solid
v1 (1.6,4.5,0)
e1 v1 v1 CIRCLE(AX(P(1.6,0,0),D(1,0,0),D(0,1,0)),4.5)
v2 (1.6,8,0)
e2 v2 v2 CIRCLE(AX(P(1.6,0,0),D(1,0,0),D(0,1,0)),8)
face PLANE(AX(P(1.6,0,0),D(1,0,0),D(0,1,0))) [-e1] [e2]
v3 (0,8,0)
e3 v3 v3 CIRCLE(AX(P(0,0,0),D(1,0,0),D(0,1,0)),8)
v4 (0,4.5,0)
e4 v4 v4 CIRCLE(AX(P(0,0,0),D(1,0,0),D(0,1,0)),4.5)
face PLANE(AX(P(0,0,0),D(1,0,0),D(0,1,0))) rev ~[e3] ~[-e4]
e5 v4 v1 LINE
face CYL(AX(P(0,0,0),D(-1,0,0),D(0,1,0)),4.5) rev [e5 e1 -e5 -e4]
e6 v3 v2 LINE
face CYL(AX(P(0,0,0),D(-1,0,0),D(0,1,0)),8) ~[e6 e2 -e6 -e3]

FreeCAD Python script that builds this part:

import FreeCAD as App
import Part
import Sketcher
from FreeCAD import Vector
Q = App.Units.Quantity

doc = App.newDocument("Part")
body = doc.addObject("PartDesign::Body", "Body")

# Sketch on YZ plane
sketch1 = body.newObject("Sketcher::SketchObject", "Sketch")
sketch1.AttachmentSupport = (doc.getObject("YZ_Plane"), [""])
sketch1.MapMode = "FlatFace"
sketch1.addGeometry([
    Part.Circle(Vector(0, 0, 0), Vector(0, 0, 1), 8),
    Part.Circle(Vector(0, 0, 0), Vector(0, 0, 1), 4.5),
], False)
sketch1.addConstraint([
    Sketcher.Constraint("Coincident", 0, 3, -1, 1),
    Sketcher.Constraint("Coincident", 1, 3, -1, 1),
    Sketcher.Constraint("Diameter", 0, Q("16 mm")),
    Sketcher.Constraint("Diameter", 1, Q("9 mm")),
])
pad1 = body.newObject("PartDesign::Pad", "Pad")
pad1.Profile = sketch1
pad1.Length = 1.6

doc.recompute()
